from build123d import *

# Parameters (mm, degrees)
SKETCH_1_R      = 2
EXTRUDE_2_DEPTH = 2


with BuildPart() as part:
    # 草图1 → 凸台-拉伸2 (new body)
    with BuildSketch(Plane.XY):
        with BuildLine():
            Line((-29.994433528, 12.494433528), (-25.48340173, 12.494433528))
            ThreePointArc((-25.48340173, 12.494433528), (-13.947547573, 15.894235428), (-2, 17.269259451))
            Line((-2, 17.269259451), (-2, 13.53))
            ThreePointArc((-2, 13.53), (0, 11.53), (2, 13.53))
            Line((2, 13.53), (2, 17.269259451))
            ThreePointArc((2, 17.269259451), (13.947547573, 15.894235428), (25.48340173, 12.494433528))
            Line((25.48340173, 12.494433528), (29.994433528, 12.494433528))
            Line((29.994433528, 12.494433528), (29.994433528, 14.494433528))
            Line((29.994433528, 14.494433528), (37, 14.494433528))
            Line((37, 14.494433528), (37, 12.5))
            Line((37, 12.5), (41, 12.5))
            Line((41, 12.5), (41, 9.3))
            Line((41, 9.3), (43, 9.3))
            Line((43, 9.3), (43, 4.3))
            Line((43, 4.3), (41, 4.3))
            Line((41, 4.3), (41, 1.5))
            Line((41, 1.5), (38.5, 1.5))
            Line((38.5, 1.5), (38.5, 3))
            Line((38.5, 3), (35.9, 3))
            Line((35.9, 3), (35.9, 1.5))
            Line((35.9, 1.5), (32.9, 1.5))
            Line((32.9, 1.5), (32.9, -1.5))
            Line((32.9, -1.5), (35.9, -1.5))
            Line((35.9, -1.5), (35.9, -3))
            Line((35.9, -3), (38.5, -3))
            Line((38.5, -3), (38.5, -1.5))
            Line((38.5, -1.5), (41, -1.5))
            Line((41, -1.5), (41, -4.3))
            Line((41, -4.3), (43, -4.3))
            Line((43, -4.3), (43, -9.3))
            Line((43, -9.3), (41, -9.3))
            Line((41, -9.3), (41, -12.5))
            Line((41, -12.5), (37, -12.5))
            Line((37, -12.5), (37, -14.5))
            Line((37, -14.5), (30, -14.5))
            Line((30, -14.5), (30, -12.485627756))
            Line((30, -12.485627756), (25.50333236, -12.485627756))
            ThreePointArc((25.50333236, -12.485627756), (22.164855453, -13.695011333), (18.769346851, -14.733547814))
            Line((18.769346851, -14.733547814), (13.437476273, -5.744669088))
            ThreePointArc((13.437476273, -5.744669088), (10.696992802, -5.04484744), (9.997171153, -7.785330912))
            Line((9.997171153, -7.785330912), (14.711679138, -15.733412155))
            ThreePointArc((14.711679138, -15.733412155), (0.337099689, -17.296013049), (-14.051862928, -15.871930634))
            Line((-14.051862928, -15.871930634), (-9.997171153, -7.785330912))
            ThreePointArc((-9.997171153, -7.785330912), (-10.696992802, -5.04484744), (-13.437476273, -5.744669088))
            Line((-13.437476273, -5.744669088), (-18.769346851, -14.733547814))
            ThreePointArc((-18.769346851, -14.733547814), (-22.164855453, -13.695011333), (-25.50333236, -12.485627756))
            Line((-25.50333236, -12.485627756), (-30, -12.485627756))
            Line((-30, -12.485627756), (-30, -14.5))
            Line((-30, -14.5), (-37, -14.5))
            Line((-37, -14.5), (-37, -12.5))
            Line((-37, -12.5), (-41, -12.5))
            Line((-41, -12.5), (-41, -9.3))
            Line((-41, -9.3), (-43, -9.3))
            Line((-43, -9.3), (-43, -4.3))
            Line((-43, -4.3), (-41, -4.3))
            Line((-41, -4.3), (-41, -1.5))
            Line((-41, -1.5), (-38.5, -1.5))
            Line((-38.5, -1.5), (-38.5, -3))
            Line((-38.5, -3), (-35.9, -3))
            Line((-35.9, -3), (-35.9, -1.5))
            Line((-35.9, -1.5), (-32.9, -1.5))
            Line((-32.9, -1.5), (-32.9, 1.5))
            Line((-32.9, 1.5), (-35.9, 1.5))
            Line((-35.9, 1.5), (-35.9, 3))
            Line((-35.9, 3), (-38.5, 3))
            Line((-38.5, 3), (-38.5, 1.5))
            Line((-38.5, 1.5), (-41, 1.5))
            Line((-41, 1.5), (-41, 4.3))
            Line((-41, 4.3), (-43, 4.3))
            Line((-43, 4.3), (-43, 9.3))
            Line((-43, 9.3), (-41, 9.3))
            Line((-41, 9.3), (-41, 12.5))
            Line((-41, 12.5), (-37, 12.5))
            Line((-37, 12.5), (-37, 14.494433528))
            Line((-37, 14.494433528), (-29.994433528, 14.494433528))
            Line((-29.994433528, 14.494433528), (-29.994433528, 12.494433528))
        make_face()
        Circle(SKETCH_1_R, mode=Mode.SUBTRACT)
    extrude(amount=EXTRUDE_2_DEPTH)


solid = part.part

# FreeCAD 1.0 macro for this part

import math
import FreeCAD as App
import Part
import Sketcher
from FreeCAD import Vector
Q = App.Units.Quantity

doc = App.newDocument("Part")
body = doc.addObject("PartDesign::Body", "Body")

sketch1 = body.newObject("Sketcher::SketchObject", "Sketch")
sketch1.AttachmentSupport = (doc.getObject("XY_Plane"), [""])
sketch1.MapMode = "FlatFace"
sketch1.addGeometry(Part.LineSegment(Vector(-25.483402, 12.494434, 0), Vector(-29.994434, 12.494434, 0)), False)
sketch1.addGeometry(Part.LineSegment(Vector(-29.994434, 12.494434, 0), Vector(-29.994434, 14.494434, 0)), False)
sketch1.addGeometry(Part.LineSegment(Vector(-29.994434, 14.494434, 0), Vector(-37, 14.494434, 0)), False)
sketch1.addGeometry(Part.LineSegment(Vector(-37, 14.494434, 0), Vector(-37, 12.5, 0)), False)
sketch1.addGeometry(Part.LineSegment(Vector(-37, 12.5, 0), Vector(-41, 12.5, 0)), False)
sketch1.addGeometry(Part.LineSegment(Vector(-41, 12.5, 0), Vector(-41, 9.3, 0)), False)
sketch1.addGeometry(Part.LineSegment(Vector(-41, 9.3, 0), Vector(-43, 9.3, 0)), False)
sketch1.addGeometry(Part.LineSegment(Vector(-43, 9.3, 0), Vector(-43, 4.3, 0)), False)
sketch1.addGeometry(Part.LineSegment(Vector(-43, 4.3, 0), Vector(-41, 4.3, 0)), False)
sketch1.addGeometry(Part.LineSegment(Vector(-41, 4.3, 0), Vector(-41, 1.5, 0)), False)
sketch1.addGeometry(Part.LineSegment(Vector(-41, 1.5, 0), Vector(-38.5, 1.5, 0)), False)
sketch1.addGeometry(Part.LineSegment(Vector(-38.5, 1.5, 0), Vector(-38.5, 3, 0)), False)
sketch1.addGeometry(Part.LineSegment(Vector(-38.5, 3, 0), Vector(-35.9, 3, 0)), False)
sketch1.addGeometry(Part.LineSegment(Vector(-35.9, 3, 0), Vector(-35.9, 1.5, 0)), False)
sketch1.addGeometry(Part.LineSegment(Vector(-35.9, 1.5, 0), Vector(-32.9, 1.5, 0)), False)
sketch1.addGeometry(Part.LineSegment(Vector(-32.9, 1.5, 0), Vector(-32.9, -1.5, 0)), False)
sketch1.addGeometry(Part.LineSegment(Vector(-32.9, -1.5, 0), Vector(-35.9, -1.5, 0)), False)
sketch1.addGeometry(Part.LineSegment(Vector(-35.9, -1.5, 0), Vector(-35.9, -3, 0)), False)
sketch1.addGeometry(Part.LineSegment(Vector(-35.9, -3, 0), Vector(-38.5, -3, 0)), False)
sketch1.addGeometry(Part.LineSegment(Vector(-38.5, -3, 0), Vector(-38.5, -1.5, 0)), False)
sketch1.addGeometry(Part.LineSegment(Vector(-38.5, -1.5, 0), Vector(-41, -1.5, 0)), False)
sketch1.addGeometry(Part.LineSegment(Vector(-41, -1.5, 0), Vector(-41, -4.3, 0)), False)
sketch1.addGeometry(Part.LineSegment(Vector(-41, -4.3, 0), Vector(-43, -4.3, 0)), False)
sketch1.addGeometry(Part.LineSegment(Vector(-43, -4.3, 0), Vector(-43, -9.3, 0)), False)
sketch1.addGeometry(Part.LineSegment(Vector(-43, -9.3, 0), Vector(-41, -9.3, 0)), False)
sketch1.addGeometry(Part.LineSegment(Vector(-41, -9.3, 0), Vector(-41, -12.5, 0)), False)
sketch1.addGeometry(Part.LineSegment(Vector(-41, -12.5, 0), Vector(-37, -12.5, 0)), False)
sketch1.addGeometry(Part.LineSegment(Vector(-37, -12.5, 0), Vector(-37, -14.5, 0)), False)
sketch1.addGeometry(Part.LineSegment(Vector(-37, -14.5, 0), Vector(-30, -14.5, 0)), False)
sketch1.addGeometry(Part.LineSegment(Vector(-30, -14.5, 0), Vector(-30, -12.485628, 0)), False)
sketch1.addGeometry(Part.LineSegment(Vector(-30, -12.485628, 0), Vector(-25.503332, -12.485628, 0)), False)
sketch1.addGeometry(Part.ArcOfCircle(Part.Circle(Vector(0, 52.703176, 0), Vector(0, 0, 1), 70), math.radians(-111.36656), math.radians(-105.553231)), False)
sketch1.addGeometry(Part.LineSegment(Vector(-18.769347, -14.733548, 0), Vector(-13.437476, -5.744669, 0)), False)
sketch1.addGeometry(Part.ArcOfCircle(Part.Circle(Vector(-11.717324, -6.765, 0), Vector(0, 0, 1), 2), math.radians(-30.674851), math.radians(149.325149)), False)
sketch1.addGeometry(Part.LineSegment(Vector(-9.997171, -7.785331, 0), Vector(-14.051863, -15.871931, 0)), False)
sketch1.addGeometry(Part.ArcOfCircle(Part.Circle(Vector(0, 52.703175, 0), Vector(0, 0, 1), 70), math.radians(-101.580288), math.radians(-77.86787)), False)
sketch1.addGeometry(Part.LineSegment(Vector(14.711679, -15.733412, 0), Vector(9.997171, -7.785331, 0)), False)
sketch1.addGeometry(Part.ArcOfCircle(Part.Circle(Vector(11.717324, -6.765, 0), Vector(0, 0, 1), 2), math.radians(30.674851), math.radians(210.674851)), False)
sketch1.addGeometry(Part.LineSegment(Vector(13.437476, -5.744669, 0), Vector(18.769347, -14.733548, 0)), False)
sketch1.addGeometry(Part.ArcOfCircle(Part.Circle(Vector(0, 52.703176, 0), Vector(0, 0, 1), 70), math.radians(-74.446769), math.radians(-68.63344)), False)
sketch1.addGeometry(Part.LineSegment(Vector(25.503332, -12.485628, 0), Vector(30, -12.485628, 0)), False)
sketch1.addGeometry(Part.LineSegment(Vector(30, -12.485628, 0), Vector(30, -14.5, 0)), False)
sketch1.addGeometry(Part.LineSegment(Vector(30, -14.5, 0), Vector(37, -14.5, 0)), False)
sketch1.addGeometry(Part.LineSegment(Vector(37, -14.5, 0), Vector(37, -12.5, 0)), False)
sketch1.addGeometry(Part.LineSegment(Vector(37, -12.5, 0), Vector(41, -12.5, 0)), False)
sketch1.addGeometry(Part.LineSegment(Vector(41, -12.5, 0), Vector(41, -9.3, 0)), False)
sketch1.addGeometry(Part.LineSegment(Vector(41, -9.3, 0), Vector(43, -9.3, 0)), False)
sketch1.addGeometry(Part.LineSegment(Vector(43, -9.3, 0), Vector(43, -4.3, 0)), False)
sketch1.addGeometry(Part.LineSegment(Vector(43, -4.3, 0), Vector(41, -4.3, 0)), False)
sketch1.addGeometry(Part.LineSegment(Vector(41, -4.3, 0), Vector(41, -1.5, 0)), False)
sketch1.addGeometry(Part.LineSegment(Vector(41, -1.5, 0), Vector(38.5, -1.5, 0)), False)
sketch1.addGeometry(Part.LineSegment(Vector(38.5, -1.5, 0), Vector(38.5, -3, 0)), False)
sketch1.addGeometry(Part.LineSegment(Vector(38.5, -3, 0), Vector(35.9, -3, 0)), False)
sketch1.addGeometry(Part.LineSegment(Vector(35.9, -3, 0), Vector(35.9, -1.5, 0)), False)
sketch1.addGeometry(Part.LineSegment(Vector(35.9, -1.5, 0), Vector(32.9, -1.5, 0)), False)
sketch1.addGeometry(Part.LineSegment(Vector(32.9, -1.5, 0), Vector(32.9, 1.5, 0)), False)
sketch1.addGeometry(Part.LineSegment(Vector(32.9, 1.5, 0), Vector(35.9, 1.5, 0)), False)
sketch1.addGeometry(Part.LineSegment(Vector(35.9, 1.5, 0), Vector(35.9, 3, 0)), False)
sketch1.addGeometry(Part.LineSegment(Vector(35.9, 3, 0), Vector(38.5, 3, 0)), False)
sketch1.addGeometry(Part.LineSegment(Vector(38.5, 3, 0), Vector(38.5, 1.5, 0)), False)
sketch1.addGeometry(Part.LineSegment(Vector(38.5, 1.5, 0), Vector(41, 1.5, 0)), False)
sketch1.addGeometry(Part.LineSegment(Vector(41, 1.5, 0), Vector(41, 4.3, 0)), False)
sketch1.addGeometry(Part.LineSegment(Vector(41, 4.3, 0), Vector(43, 4.3, 0)), False)
sketch1.addGeometry(Part.LineSegment(Vector(43, 4.3, 0), Vector(43, 9.3, 0)), False)
sketch1.addGeometry(Part.LineSegment(Vector(43, 9.3, 0), Vector(41, 9.3, 0)), False)
sketch1.addGeometry(Part.LineSegment(Vector(41, 9.3, 0), Vector(41, 12.5, 0)), False)
sketch1.addGeometry(Part.LineSegment(Vector(41, 12.5, 0), Vector(37, 12.5, 0)), False)
sketch1.addGeometry(Part.LineSegment(Vector(37, 12.5, 0), Vector(37, 14.494434, 0)), False)
sketch1.addGeometry(Part.LineSegment(Vector(37, 14.494434, 0), Vector(29.994434, 14.494434, 0)), False)
sketch1.addGeometry(Part.LineSegment(Vector(29.994434, 14.494434, 0), Vector(29.994434, 12.494434, 0)), False)
sketch1.addGeometry(Part.LineSegment(Vector(29.994434, 12.494434, 0), Vector(25.483402, 12.494434, 0)), False)
sketch1.addGeometry(Part.ArcOfCircle(Part.Circle(Vector(0, -52.702163, 0), Vector(0, 0, 1), 70), math.radians(68.650957), math.radians(88.362755)), False)
sketch1.addGeometry(Part.LineSegment(Vector(2, 17.269259, 0), Vector(2, 13.53, 0)), False)
sketch1.addGeometry(Part.ArcOfCircle(Part.Circle(Vector(0, 13.53, 0), Vector(0, 0, 1), 2), math.radians(180), math.radians(360)), False)
sketch1.addGeometry(Part.LineSegment(Vector(-2, 13.53, 0), Vector(-2, 17.269259, 0)), False)
sketch1.addGeometry(Part.ArcOfCircle(Part.Circle(Vector(0, -52.702163, 0), Vector(0, 0, 1), 70), math.radians(91.637245), math.radians(111.349043)), False)
sketch1.addGeometry(Part.Circle(Vector(0, 0, 0), Vector(0, 0, 1), 2), False)
sketch1.addConstraint(Sketcher.Constraint("Coincident", 0, 2, 1, 1))
sketch1.addConstraint(Sketcher.Constraint("Coincident", 1, 2, 2, 1))
sketch1.addConstraint(Sketcher.Constraint("Coincident", 2, 2, 3, 1))
sketch1.addConstraint(Sketcher.Constraint("Coincident", 3, 2, 4, 1))
sketch1.addConstraint(Sketcher.Constraint("Coincident", 4, 2, 5, 1))
sketch1.addConstraint(Sketcher.Constraint("Coincident", 5, 2, 6, 1))
sketch1.addConstraint(Sketcher.Constraint("Coincident", 6, 2, 7, 1))
sketch1.addConstraint(Sketcher.Constraint("Coincident", 7, 2, 8, 1))
sketch1.addConstraint(Sketcher.Constraint("Coincident", 8, 2, 9, 1))
sketch1.addConstraint(Sketcher.Constraint("Coincident", 9, 2, 10, 1))
sketch1.addConstraint(Sketcher.Constraint("Coincident", 10, 2, 11, 1))
sketch1.addConstraint(Sketcher.Constraint("Coincident", 11, 2, 12, 1))
sketch1.addConstraint(Sketcher.Constraint("Coincident", 12, 2, 13, 1))
sketch1.addConstraint(Sketcher.Constraint("Coincident", 13, 2, 14, 1))
sketch1.addConstraint(Sketcher.Constraint("Coincident", 14, 2, 15, 1))
sketch1.addConstraint(Sketcher.Constraint("Coincident", 15, 2, 16, 1))
sketch1.addConstraint(Sketcher.Constraint("Coincident", 16, 2, 17, 1))
sketch1.addConstraint(Sketcher.Constraint("Coincident", 17, 2, 18, 1))
sketch1.addConstraint(Sketcher.Constraint("Coincident", 18, 2, 19, 1))
sketch1.addConstraint(Sketcher.Constraint("Coincident", 19, 2, 20, 1))
sketch1.addConstraint(Sketcher.Constraint("Coincident", 20, 2, 21, 1))
sketch1.addConstraint(Sketcher.Constraint("Coincident", 21, 2, 22, 1))
sketch1.addConstraint(Sketcher.Constraint("Coincident", 22, 2, 23, 1))
sketch1.addConstraint(Sketcher.Constraint("Coincident", 23, 2, 24, 1))
sketch1.addConstraint(Sketcher.Constraint("Coincident", 24, 2, 25, 1))
sketch1.addConstraint(Sketcher.Constraint("Coincident", 25, 2, 26, 1))
sketch1.addConstraint(Sketcher.Constraint("Coincident", 26, 2, 27, 1))
sketch1.addConstraint(Sketcher.Constraint("Coincident", 27, 2, 28, 1))
sketch1.addConstraint(Sketcher.Constraint("Coincident", 28, 2, 29, 1))
sketch1.addConstraint(Sketcher.Constraint("Coincident", 29, 2, 30, 1))
sketch1.addConstraint(Sketcher.Constraint("Coincident", 30, 2, 31, 1))
sketch1.addConstraint(Sketcher.Constraint("Coincident", 31, 2, 32, 1))
sketch1.addConstraint(Sketcher.Constraint("Tangent", 32, 2, 33, 2))
sketch1.addConstraint(Sketcher.Constraint("Coincident", 33, 1, 34, 1))
sketch1.addConstraint(Sketcher.Constraint("Coincident", 34, 2, 35, 1))
sketch1.addConstraint(Sketcher.Constraint("Coincident", 35, 2, 36, 1))
sketch1.addConstraint(Sketcher.Constraint("Tangent", 36, 2, 37, 2))
sketch1.addConstraint(Sketcher.Constraint("Tangent", 37, 1, 38, 1))
sketch1.addConstraint(Sketcher.Constraint("Coincident", 38, 2, 39, 1))
sketch1.addConstraint(Sketcher.Constraint("Coincident", 39, 2, 40, 1))
sketch1.addConstraint(Sketcher.Constraint("Coincident", 40, 2, 41, 1))
sketch1.addConstraint(Sketcher.Constraint("Coincident", 41, 2, 42, 1))
sketch1.addConstraint(Sketcher.Constraint("Coincident", 42, 2, 43, 1))
sketch1.addConstraint(Sketcher.Constraint("Coincident", 43, 2, 44, 1))
sketch1.addConstraint(Sketcher.Constraint("Coincident", 44, 2, 45, 1))
sketch1.addConstraint(Sketcher.Constraint("Coincident", 45, 2, 46, 1))
sketch1.addConstraint(Sketcher.Constraint("Coincident", 46, 2, 47, 1))
sketch1.addConstraint(Sketcher.Constraint("Coincident", 47, 2, 48, 1))
sketch1.addConstraint(Sketcher.Constraint("Coincident", 48, 2, 49, 1))
sketch1.addConstraint(Sketcher.Constraint("Coincident", 49, 2, 50, 1))
sketch1.addConstraint(Sketcher.Constraint("Coincident", 50, 2, 51, 1))
sketch1.addConstraint(Sketcher.Constraint("Coincident", 51, 2, 52, 1))
sketch1.addConstraint(Sketcher.Constraint("Coincident", 52, 2, 53, 1))
sketch1.addConstraint(Sketcher.Constraint("Coincident", 53, 2, 54, 1))
sketch1.addConstraint(Sketcher.Constraint("Coincident", 54, 2, 55, 1))
sketch1.addConstraint(Sketcher.Constraint("Coincident", 55, 2, 56, 1))
sketch1.addConstraint(Sketcher.Constraint("Coincident", 56, 2, 57, 1))
sketch1.addConstraint(Sketcher.Constraint("Coincident", 57, 2, 58, 1))
sketch1.addConstraint(Sketcher.Constraint("Coincident", 58, 2, 59, 1))
sketch1.addConstraint(Sketcher.Constraint("Coincident", 59, 2, 60, 1))
sketch1.addConstraint(Sketcher.Constraint("Coincident", 60, 2, 61, 1))
sketch1.addConstraint(Sketcher.Constraint("Coincident", 61, 2, 62, 1))
sketch1.addConstraint(Sketcher.Constraint("Coincident", 62, 2, 63, 1))
sketch1.addConstraint(Sketcher.Constraint("Coincident", 63, 2, 64, 1))
sketch1.addConstraint(Sketcher.Constraint("Coincident", 64, 2, 65, 1))
sketch1.addConstraint(Sketcher.Constraint("Coincident", 65, 2, 66, 1))
sketch1.addConstraint(Sketcher.Constraint("Coincident", 66, 2, 67, 1))
sketch1.addConstraint(Sketcher.Constraint("Coincident", 67, 2, 68, 1))
sketch1.addConstraint(Sketcher.Constraint("Coincident", 68, 2, 69, 1))
sketch1.addConstraint(Sketcher.Constraint("Coincident", 69, 2, 70, 1))
sketch1.addConstraint(Sketcher.Constraint("Coincident", 70, 2, 71, 1))
sketch1.addConstraint(Sketcher.Constraint("Coincident", 71, 2, 72, 1))
sketch1.addConstraint(Sketcher.Constraint("Tangent", 72, 2, 73, 2))
sketch1.addConstraint(Sketcher.Constraint("Tangent", 73, 1, 74, 1))
sketch1.addConstraint(Sketcher.Constraint("Coincident", 74, 2, 75, 1))
sketch1.addConstraint(Sketcher.Constraint("Coincident", 75, 2, 0, 1))
sketch1.addConstraint(Sketcher.Constraint("Horizontal", 0))
sketch1.addConstraint(Sketcher.Constraint("Vertical", 1))
sketch1.addConstraint(Sketcher.Constraint("Horizontal", 2))
sketch1.addConstraint(Sketcher.Constraint("Vertical", 3))
sketch1.addConstraint(Sketcher.Constraint("Horizontal", 4))
sketch1.addConstraint(Sketcher.Constraint("Vertical", 5))
sketch1.addConstraint(Sketcher.Constraint("Horizontal", 6))
sketch1.addConstraint(Sketcher.Constraint("Vertical", 7))
sketch1.addConstraint(Sketcher.Constraint("Horizontal", 8))
sketch1.addConstraint(Sketcher.Constraint("Vertical", 9))
sketch1.addConstraint(Sketcher.Constraint("Horizontal", 10))
sketch1.addConstraint(Sketcher.Constraint("Vertical", 11))
sketch1.addConstraint(Sketcher.Constraint("Horizontal", 12))
sketch1.addConstraint(Sketcher.Constraint("Vertical", 13))
sketch1.addConstraint(Sketcher.Constraint("Horizontal", 14))
sketch1.addConstraint(Sketcher.Constraint("Vertical", 15))
sketch1.addConstraint(Sketcher.Constraint("Horizontal", 16))
sketch1.addConstraint(Sketcher.Constraint("Vertical", 17))
sketch1.addConstraint(Sketcher.Constraint("Horizontal", 18))
sketch1.addConstraint(Sketcher.Constraint("Vertical", 19))
sketch1.addConstraint(Sketcher.Constraint("Horizontal", 20))
sketch1.addConstraint(Sketcher.Constraint("Vertical", 21))
sketch1.addConstraint(Sketcher.Constraint("Horizontal", 22))
sketch1.addConstraint(Sketcher.Constraint("Vertical", 23))
sketch1.addConstraint(Sketcher.Constraint("Horizontal", 24))
sketch1.addConstraint(Sketcher.Constraint("Vertical", 25))
sketch1.addConstraint(Sketcher.Constraint("Horizontal", 26))
sketch1.addConstraint(Sketcher.Constraint("Vertical", 27))
sketch1.addConstraint(Sketcher.Constraint("Horizontal", 28))
sketch1.addConstraint(Sketcher.Constraint("Vertical", 29))
sketch1.addConstraint(Sketcher.Constraint("Horizontal", 30))
sketch1.addConstraint(Sketcher.Constraint("Horizontal", 40))
sketch1.addConstraint(Sketcher.Constraint("Vertical", 41))
sketch1.addConstraint(Sketcher.Constraint("Horizontal", 42))
sketch1.addConstraint(Sketcher.Constraint("Vertical", 43))
sketch1.addConstraint(Sketcher.Constraint("Horizontal", 44))
sketch1.addConstraint(Sketcher.Constraint("Vertical", 45))
sketch1.addConstraint(Sketcher.Constraint("Horizontal", 46))
sketch1.addConstraint(Sketcher.Constraint("Vertical", 47))
sketch1.addConstraint(Sketcher.Constraint("Horizontal", 48))
sketch1.addConstraint(Sketcher.Constraint("Vertical", 49))
sketch1.addConstraint(Sketcher.Constraint("Horizontal", 50))
sketch1.addConstraint(Sketcher.Constraint("Vertical", 51))
sketch1.addConstraint(Sketcher.Constraint("Horizontal", 52))
sketch1.addConstraint(Sketcher.Constraint("Vertical", 53))
sketch1.addConstraint(Sketcher.Constraint("Horizontal", 54))
sketch1.addConstraint(Sketcher.Constraint("Vertical", 55))
sketch1.addConstraint(Sketcher.Constraint("Horizontal", 56))
sketch1.addConstraint(Sketcher.Constraint("Vertical", 57))
sketch1.addConstraint(Sketcher.Constraint("Horizontal", 58))
sketch1.addConstraint(Sketcher.Constraint("Vertical", 59))
sketch1.addConstraint(Sketcher.Constraint("Horizontal", 60))
sketch1.addConstraint(Sketcher.Constraint("Vertical", 61))
sketch1.addConstraint(Sketcher.Constraint("Horizontal", 62))
sketch1.addConstraint(Sketcher.Constraint("Vertical", 63))
sketch1.addConstraint(Sketcher.Constraint("Horizontal", 64))
sketch1.addConstraint(Sketcher.Constraint("Vertical", 65))
sketch1.addConstraint(Sketcher.Constraint("Horizontal", 66))
sketch1.addConstraint(Sketcher.Constraint("Vertical", 67))
sketch1.addConstraint(Sketcher.Constraint("Horizontal", 68))
sketch1.addConstraint(Sketcher.Constraint("Vertical", 69))
sketch1.addConstraint(Sketcher.Constraint("Horizontal", 70))
sketch1.addConstraint(Sketcher.Constraint("Vertical", 72))
sketch1.addConstraint(Sketcher.Constraint("Vertical", 74))
sketch1.addConstraint(Sketcher.Constraint("Coincident", 76, 3, -1, 1))
sketch1.addConstraint(Sketcher.Constraint("Coincident", 35, 3, 31, 3))
sketch1.addConstraint(Sketcher.Constraint("Coincident", 39, 3, 31, 3))
sketch1.addConstraint(Sketcher.Constraint("Coincident", 75, 3, 71, 3))
sketch1.addConstraint(Sketcher.Constraint("Equal", 31, 35))
sketch1.addConstraint(Sketcher.Constraint("Equal", 33, 37))
sketch1.addConstraint(Sketcher.Constraint("Equal", 35, 39))
sketch1.addConstraint(Sketcher.Constraint("Equal", 39, 71))
sketch1.addConstraint(Sketcher.Constraint("Equal", 37, 73))
sketch1.addConstraint(Sketcher.Constraint("Equal", 71, 75))
sketch1.addConstraint(Sketcher.Constraint("Equal", 73, 76))
sketch1.addConstraint(Sketcher.Constraint("Symmetric", 3, 2, 43, 2, -1, 1))
sketch1.addConstraint(Sketcher.Constraint("Symmetric", 5, 2, 45, 2, -1, 1))
sketch1.addConstraint(Sketcher.Constraint("Symmetric", 7, 2, 47, 2, -1, 1))
sketch1.addConstraint(Sketcher.Constraint("Symmetric", 9, 2, 49, 2, -1, 1))
sketch1.addConstraint(Sketcher.Constraint("Symmetric", 11, 2, 51, 2, -1, 1))
sketch1.addConstraint(Sketcher.Constraint("Symmetric", 13, 2, 53, 2, -1, 1))
sketch1.addConstraint(Sketcher.Constraint("Symmetric", 15, 2, 55, 2, -1, 1))
sketch1.addConstraint(Sketcher.Constraint("Symmetric", 17, 2, 57, 2, -1, 1))
sketch1.addConstraint(Sketcher.Constraint("Symmetric", 19, 2, 59, 2, -1, 1))
sketch1.addConstraint(Sketcher.Constraint("Symmetric", 21, 2, 61, 2, -1, 1))
sketch1.addConstraint(Sketcher.Constraint("Symmetric", 23, 2, 63, 2, -1, 1))
sketch1.addConstraint(Sketcher.Constraint("Symmetric", 25, 2, 65, 2, -1, 1))
sketch1.addConstraint(Sketcher.Constraint("Symmetric", 33, 3, 37, 3, -2))
sketch1.addConstraint(Sketcher.Constraint("Symmetric", 31, 2, 38, 2, -2))
sketch1.addConstraint(Sketcher.Constraint("Symmetric", 29, 2, 40, 2, -2))
sketch1.addConstraint(Sketcher.Constraint("Symmetric", 27, 2, 42, 2, -2))
sketch1.addConstraint(Sketcher.Constraint("Symmetric", 25, 2, 44, 2, -2))
sketch1.addConstraint(Sketcher.Constraint("Symmetric", 23, 2, 46, 2, -2))
sketch1.addConstraint(Sketcher.Constraint("Symmetric", 21, 2, 48, 2, -2))
sketch1.addConstraint(Sketcher.Constraint("Symmetric", 19, 2, 50, 2, -2))
sketch1.addConstraint(Sketcher.Constraint("Symmetric", 17, 2, 52, 2, -2))
sketch1.addConstraint(Sketcher.Constraint("Symmetric", 2, 2, 67, 2, -2))
sketch1.addConstraint(Sketcher.Constraint("Symmetric", 0, 2, 69, 2, -2))
sketch1.addConstraint(Sketcher.Constraint("Symmetric", 71, 2, 74, 2, -2))
sketch1.addConstraint(Sketcher.Constraint("Parallel", 36, 38))
sketch1.addConstraint(Sketcher.Constraint("Horizontal", 10, 2, 13, 2))
sketch1.addConstraint(Sketcher.Constraint("Horizontal", 16, 2, 19, 2))
sketch1.addConstraint(Sketcher.Constraint("Horizontal", 33, 1, 36, 2))
sketch1.addConstraint(Sketcher.Constraint("Vertical", 5, 2, 8, 2))
sketch1.addConstraint(Sketcher.Constraint("Equal", 64, 1))
sketch1.addConstraint(Sketcher.Constraint("Equal", 56, 15))
sketch1.addConstraint(Sketcher.Constraint("Equal", 1, 27))
sketch1.addConstraint(Sketcher.Constraint("Diameter", 76, Q("4 mm")))
sketch1.addConstraint(Sketcher.Constraint("Radius", 31, Q("70 mm")))
sketch1.addConstraint(Sketcher.Constraint("DistanceX", 4, 2, 4, 1, Q("4 mm")))
sketch1.addConstraint(Sketcher.Constraint("DistanceX", 6, 2, 6, 1, Q("2 mm")))
sketch1.addConstraint(Sketcher.Constraint("DistanceX", 14, 1, 14, 2, Q("3 mm")))
sketch1.addConstraint(Sketcher.Constraint("DistanceX", 28, 1, 28, 2, Q("7 mm")))
sketch1.addConstraint(Sketcher.Constraint("DistanceY", 7, 2, 7, 1, Q("5 mm")))
sketch1.addConstraint(Sketcher.Constraint("DistanceX", 10, 1, 10, 2, Q("2.5 mm")))
sketch1.addConstraint(Sketcher.Constraint("DistanceX", 12, 1, 12, 2, Q("2.6 mm")))
sketch1.addConstraint(Sketcher.Constraint("DistanceY", 5, 2, 5, 1, Q("3.2 mm")))
sketch1.addConstraint(Sketcher.Constraint("DistanceY", 9, 2, 9, 1, Q("2.8 mm")))
sketch1.addConstraint(Sketcher.Constraint("DistanceY", 11, 1, 11, 2, Q("1.5 mm")))
sketch1.addConstraint(Sketcher.Constraint("DistanceX", 2, 2, -1, 1, Q("37 mm")))
sketch1.addConstraint(Sketcher.Constraint("DistanceY", -1, 1, 73, 3, Q("13.53 mm")))
sketch1.addConstraint(Sketcher.Constraint("DistanceY", 33, 3, -1, 1, Q("6.765 mm")))
sketch1.addConstraint(Sketcher.Constraint("DistanceX", 0, 2, 0, 1, Q("4.511032 mm")))
sketch1.addConstraint(Sketcher.Constraint("DistanceY", 72, 2, 72, 1, Q("3.739259 mm")))
sketch1.addConstraint(Sketcher.Constraint("DistanceX", -1, 1, 70, 2, Q("25.483402 mm")))
sketch1.addConstraint(Sketcher.Constraint("DistanceX", 30, 1, 30, 2, Q("4.496668 mm")))
sketch1.addConstraint(Sketcher.Constraint("DistanceY", 29, 1, 29, 2, Q("2.014372 mm")))
sketch1.addConstraint(Sketcher.Constraint("DistanceY", 32, 2, -1, 1, Q("5.744669 mm")))
sketch1.addConstraint(Sketcher.Constraint("DistanceX", 33, 1, -1, 1, Q("9.997171 mm")))
sketch1.addConstraint(Sketcher.Constraint("DistanceY", 34, 2, -1, 1, Q("15.871931 mm")))
pad1 = body.newObject("PartDesign::Pad", "Pad")
pad1.Profile = sketch1
pad1.Length = 2

doc.recompute()
